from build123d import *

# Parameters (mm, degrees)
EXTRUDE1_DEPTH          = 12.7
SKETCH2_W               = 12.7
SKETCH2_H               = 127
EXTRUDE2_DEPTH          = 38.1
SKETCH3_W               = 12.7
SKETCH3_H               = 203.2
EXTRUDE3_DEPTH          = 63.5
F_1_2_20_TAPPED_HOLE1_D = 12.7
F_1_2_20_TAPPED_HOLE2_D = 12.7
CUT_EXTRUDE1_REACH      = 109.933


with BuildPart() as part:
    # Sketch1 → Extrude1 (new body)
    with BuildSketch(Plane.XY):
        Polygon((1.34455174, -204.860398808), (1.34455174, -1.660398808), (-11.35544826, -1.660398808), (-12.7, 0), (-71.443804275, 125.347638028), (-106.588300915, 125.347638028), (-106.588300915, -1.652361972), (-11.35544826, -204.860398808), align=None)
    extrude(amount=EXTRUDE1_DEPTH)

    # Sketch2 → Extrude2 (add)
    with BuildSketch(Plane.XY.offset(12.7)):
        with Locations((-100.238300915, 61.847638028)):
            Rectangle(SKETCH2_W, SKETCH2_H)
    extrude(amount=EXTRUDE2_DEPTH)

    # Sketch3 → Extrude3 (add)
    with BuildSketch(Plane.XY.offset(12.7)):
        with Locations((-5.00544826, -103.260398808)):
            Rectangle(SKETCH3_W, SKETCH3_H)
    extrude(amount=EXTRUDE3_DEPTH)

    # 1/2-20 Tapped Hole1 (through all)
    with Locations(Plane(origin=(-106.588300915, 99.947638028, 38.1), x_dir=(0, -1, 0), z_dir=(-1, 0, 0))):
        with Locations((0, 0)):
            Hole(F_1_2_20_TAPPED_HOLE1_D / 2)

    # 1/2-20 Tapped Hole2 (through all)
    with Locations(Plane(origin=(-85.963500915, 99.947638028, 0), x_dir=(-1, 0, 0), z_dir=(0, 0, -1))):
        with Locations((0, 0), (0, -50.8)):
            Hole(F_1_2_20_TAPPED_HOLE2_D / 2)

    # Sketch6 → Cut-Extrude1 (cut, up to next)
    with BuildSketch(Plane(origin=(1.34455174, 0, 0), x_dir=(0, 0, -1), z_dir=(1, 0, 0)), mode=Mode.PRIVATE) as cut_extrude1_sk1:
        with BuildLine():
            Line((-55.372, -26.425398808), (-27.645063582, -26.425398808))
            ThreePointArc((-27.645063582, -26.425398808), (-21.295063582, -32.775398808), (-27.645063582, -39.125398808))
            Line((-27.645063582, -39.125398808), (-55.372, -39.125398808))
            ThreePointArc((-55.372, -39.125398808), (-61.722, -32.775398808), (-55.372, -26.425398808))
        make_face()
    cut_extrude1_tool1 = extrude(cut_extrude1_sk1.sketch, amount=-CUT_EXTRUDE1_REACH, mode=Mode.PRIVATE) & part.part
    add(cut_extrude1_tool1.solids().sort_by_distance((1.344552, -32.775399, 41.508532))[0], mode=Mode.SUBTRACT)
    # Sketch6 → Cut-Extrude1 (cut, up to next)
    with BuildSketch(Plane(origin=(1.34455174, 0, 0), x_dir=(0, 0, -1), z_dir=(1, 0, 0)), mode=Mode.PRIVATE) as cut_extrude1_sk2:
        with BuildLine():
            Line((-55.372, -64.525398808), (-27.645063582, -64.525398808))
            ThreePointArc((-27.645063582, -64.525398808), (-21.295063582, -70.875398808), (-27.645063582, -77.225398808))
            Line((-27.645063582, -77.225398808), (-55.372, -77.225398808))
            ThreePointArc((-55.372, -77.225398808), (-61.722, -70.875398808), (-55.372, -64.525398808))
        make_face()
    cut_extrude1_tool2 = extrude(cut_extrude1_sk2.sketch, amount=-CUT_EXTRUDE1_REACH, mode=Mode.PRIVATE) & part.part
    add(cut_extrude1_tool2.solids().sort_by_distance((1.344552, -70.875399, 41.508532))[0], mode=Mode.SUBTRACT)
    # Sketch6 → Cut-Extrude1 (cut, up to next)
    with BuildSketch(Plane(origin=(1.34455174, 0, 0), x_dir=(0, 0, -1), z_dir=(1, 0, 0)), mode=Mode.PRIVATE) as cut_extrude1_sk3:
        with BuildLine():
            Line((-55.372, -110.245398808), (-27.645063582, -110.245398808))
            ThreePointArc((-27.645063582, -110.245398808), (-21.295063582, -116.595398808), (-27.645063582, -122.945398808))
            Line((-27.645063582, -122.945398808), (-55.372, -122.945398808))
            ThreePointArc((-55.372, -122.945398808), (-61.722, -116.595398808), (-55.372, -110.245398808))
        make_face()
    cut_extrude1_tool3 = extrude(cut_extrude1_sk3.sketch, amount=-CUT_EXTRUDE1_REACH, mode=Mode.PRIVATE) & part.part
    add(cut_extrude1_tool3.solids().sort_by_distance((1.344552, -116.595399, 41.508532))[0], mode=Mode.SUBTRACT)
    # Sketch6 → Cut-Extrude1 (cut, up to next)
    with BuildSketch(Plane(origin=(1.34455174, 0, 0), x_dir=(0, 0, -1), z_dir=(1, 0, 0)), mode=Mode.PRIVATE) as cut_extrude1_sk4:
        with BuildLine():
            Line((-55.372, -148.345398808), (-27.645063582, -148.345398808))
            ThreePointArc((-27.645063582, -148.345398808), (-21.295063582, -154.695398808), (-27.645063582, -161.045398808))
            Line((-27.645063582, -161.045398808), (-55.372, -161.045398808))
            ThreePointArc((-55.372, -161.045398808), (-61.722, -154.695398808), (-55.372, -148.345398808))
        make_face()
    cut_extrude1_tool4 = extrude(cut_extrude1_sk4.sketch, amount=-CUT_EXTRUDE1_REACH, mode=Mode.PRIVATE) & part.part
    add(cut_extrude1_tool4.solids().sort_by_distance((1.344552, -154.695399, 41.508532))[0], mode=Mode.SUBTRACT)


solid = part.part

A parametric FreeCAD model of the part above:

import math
import FreeCAD as App
import Part
import Sketcher
Q = App.Units.Quantity

doc = App.newDocument("Part")
body = doc.addObject("PartDesign::Body", "Body")

# Sketch on XY plane
sketch1 = body.newObject("Sketcher::SketchObject", "Sketch")
sketch1.AttachmentSupport = (doc.getObject("XY_Plane"), [""])
sketch1.MapMode = "FlatFace"
sketch1.addGeometry([
    Part.LineSegment(App.Vector(1.3, -204.9, 0), App.Vector(1.3, -1.7, 0)),  # 0
    Part.LineSegment(App.Vector(1.3, -1.7, 0), App.Vector(-11.4, -1.7, 0)),  # 1
    Part.LineSegment(App.Vector(-11.4, -1.7, 0), App.Vector(-12.7, 0, 0)),  # 2
    Part.LineSegment(App.Vector(-12.7, 0, 0), App.Vector(-71.4, 125.3, 0)),  # 3
    Part.LineSegment(App.Vector(-71.4, 125.3, 0), App.Vector(-106.6, 125.3, 0)),  # 4
    Part.LineSegment(App.Vector(-106.6, 125.3, 0), App.Vector(-106.6, -1.7, 0)),  # 5
    Part.LineSegment(App.Vector(-106.6, -1.7, 0), App.Vector(-11.4, -204.9, 0)),  # 6
    Part.LineSegment(App.Vector(-11.4, -204.9, 0), App.Vector(1.3, -204.9, 0)),  # 7
], False)
sketch1.addConstraint([
    Sketcher.Constraint("Coincident", 0, 2, 1, 1),
    Sketcher.Constraint("Coincident", 1, 2, 2, 1),
    Sketcher.Constraint("Coincident", 2, 2, 3, 1),
    Sketcher.Constraint("Coincident", 3, 2, 4, 1),
    Sketcher.Constraint("Coincident", 4, 2, 5, 1),
    Sketcher.Constraint("Coincident", 5, 2, 6, 1),
    Sketcher.Constraint("Coincident", 6, 2, 7, 1),
    Sketcher.Constraint("Coincident", 7, 2, 0, 1),
    Sketcher.Constraint("Vertical", 0),
    Sketcher.Constraint("Horizontal", 1),
    Sketcher.Constraint("Horizontal", 4),
    Sketcher.Constraint("Vertical", 5),
    Sketcher.Constraint("Horizontal", 7),
    Sketcher.Constraint("PointOnObject", 2, 2, -1),
    Sketcher.Constraint("Parallel", 3, 6),
    Sketcher.Constraint("Vertical", 1, 2, 6, 2),
    Sketcher.Constraint("DistanceY", 0, 1, 0, 2, Q("8 in")),
    Sketcher.Constraint("DistanceY", 5, 2, 5, 1, Q("5 in")),
    Sketcher.Constraint("DistanceX", 1, 2, 1, 1, Q("0.5 in")),
    Sketcher.Constraint("DistanceX", 2, 2, -1, 1, Q("0.5 in")),
    Sketcher.Constraint("Distance", 3, Q("5.45 in")),
    Sketcher.Constraint("Angle", 3, Q("115.11 deg")),
    Sketcher.Constraint("DistanceY", 0, 2, -1, 1, Q("1.660399 mm")),
    Sketcher.Constraint("DistanceX", 4, 2, -1, 1, Q("106.588301 mm")),
])
pad1 = body.newObject("PartDesign::Pad", "Pad")
pad1.Profile = sketch1
pad1.Length = Q("0.5 in")

# Sketch on XY plane
sketch2 = body.newObject("Sketcher::SketchObject", "Sketch001")
sketch2.AttachmentSupport = (doc.getObject("XY_Plane"), [""])
sketch2.MapMode = "FlatFace"
sketch2.AttachmentOffset = App.Placement(App.Vector(0, 0, 0.5 * 25.4), App.Rotation())
sketch2.addGeometry([
    Part.LineSegment(App.Vector(-107, 125, 0), App.Vector(-107, -2, 0)),
    Part.LineSegment(App.Vector(-107, -2, 0), App.Vector(-94, -2, 0)),
    Part.LineSegment(App.Vector(-94, -2, 0), App.Vector(-94, 125, 0)),
    Part.LineSegment(App.Vector(-94, 125, 0), App.Vector(-107, 125, 0)),
], False)
sketch2.addConstraint([
    Sketcher.Constraint("Coincident", 0, 2, 1, 1),
    Sketcher.Constraint("Coincident", 1, 2, 2, 1),
    Sketcher.Constraint("Coincident", 2, 2, 3, 1),
    Sketcher.Constraint("Coincident", 3, 2, 0, 1),
    Sketcher.Constraint("Vertical", 0),
    Sketcher.Constraint("Horizontal", 1),
    Sketcher.Constraint("Vertical", 2),
    Sketcher.Constraint("Horizontal", 3),
    Sketcher.Constraint("DistanceY", 0, 2, 0, 1, Q("5 in")),
    Sketcher.Constraint("DistanceX", 1, 1, 1, 2, Q("0.5 in")),
    Sketcher.Constraint("DistanceX", 0, 2, -1, 1, Q("106.588301 mm")),
    Sketcher.Constraint("DistanceY", 0, 2, -1, 1, Q("1.652362 mm")),
])
pad2 = body.newObject("PartDesign::Pad", "Pad001")
pad2.Profile = sketch2
pad2.Length = Q("1.5 in")

# Sketch on XY plane
sketch3 = body.newObject("Sketcher::SketchObject", "Sketch002")
sketch3.AttachmentSupport = (doc.getObject("XY_Plane"), [""])
sketch3.MapMode = "FlatFace"
sketch3.AttachmentOffset = App.Placement(App.Vector(0, 0, 0.5 * 25.4), App.Rotation())
sketch3.addGeometry([
    Part.LineSegment(App.Vector(-11, -2, 0), App.Vector(-11, -205, 0)),
    Part.LineSegment(App.Vector(-11, -205, 0), App.Vector(1, -205, 0)),
    Part.LineSegment(App.Vector(1, -205, 0), App.Vector(1, -2, 0)),
    Part.LineSegment(App.Vector(1, -2, 0), App.Vector(-11, -2, 0)),
], False)
sketch3.addConstraint([
    Sketcher.Constraint("Coincident", 0, 2, 1, 1),
    Sketcher.Constraint("Coincident", 1, 2, 2, 1),
    Sketcher.Constraint("Coincident", 2, 2, 3, 1),
    Sketcher.Constraint("Coincident", 3, 2, 0, 1),
    Sketcher.Constraint("Vertical", 0),
    Sketcher.Constraint("Horizontal", 1),
    Sketcher.Constraint("Vertical", 2),
    Sketcher.Constraint("Horizontal", 3),
    Sketcher.Constraint("DistanceY", 0, 2, 0, 1, Q("8 in")),
    Sketcher.Constraint("DistanceX", 1, 1, 1, 2, Q("0.5 in")),
    Sketcher.Constraint("DistanceY", 0, 2, -1, 1, Q("204.860399 mm")),
    Sketcher.Constraint("DistanceX", 0, 2, -1, 1, Q("11.355448 mm")),
])
pad3 = body.newObject("PartDesign::Pad", "Pad002")
pad3.Profile = sketch3
pad3.Length = Q("2.5 in")

# Sketch on YZ plane
sketch4 = body.newObject("Sketcher::SketchObject", "Sketch003")
sketch4.AttachmentSupport = (doc.getObject("YZ_Plane"), [""])
sketch4.MapMode = "FlatFace"
sketch4.AttachmentOffset = App.Placement(App.Vector(0, 0, -106.588301), App.Rotation())
sketch4.addGeometry(Part.Circle(App.Vector(100, 38, 0), App.Vector(0, 0, 1), 6), False)
sketch4.addConstraint([
    Sketcher.Constraint("Diameter", 0, Q("0.5 in")),
    Sketcher.Constraint("DistanceY", -1, 1, 0, 3, Q("1.5 in")),
    Sketcher.Constraint("DistanceX", -1, 1, 0, 3, Q("99.947638 mm")),
])
doc.recompute()
hole = body.newObject("PartDesign::Hole", "Hole")
hole.Profile = sketch4
hole.ThreadType = "None"
hole.Diameter = Q("0.5 in")
hole.DepthType = "ThroughAll"
hole.Reversed = True

# Sketch on XY plane
sketch5 = body.newObject("Sketcher::SketchObject", "Sketch004")
sketch5.AttachmentSupport = (doc.getObject("XY_Plane"), [""])
sketch5.MapMode = "FlatFace"
sketch5.addGeometry([
    Part.Circle(App.Vector(-86, 100, 0), App.Vector(0, 0, 1), 6),
    Part.Circle(App.Vector(-86, 49, 0), App.Vector(0, 0, 1), 6),
], False)
sketch5.addConstraint([
    Sketcher.Constraint("Equal", 0, 1),
    Sketcher.Constraint("Vertical", 0, 3, 1, 3),
    Sketcher.Constraint("Diameter", 0, Q("0.5 in")),
    Sketcher.Constraint("DistanceY", 1, 3, 0, 3, Q("2 in")),
    Sketcher.Constraint("DistanceX", 0, 3, -1, 1, Q("85.963501 mm")),
    Sketcher.Constraint("DistanceY", -1, 1, 0, 3, Q("99.947638 mm")),
])
doc.recompute()
hole2 = body.newObject("PartDesign::Hole", "Hole001")
hole2.Profile = sketch5
hole2.ThreadType = "None"
hole2.Diameter = Q("0.5 in")
hole2.DepthType = "ThroughAll"
hole2.Reversed = True

# Sketch on YZ plane
sketch6 = body.newObject("Sketcher::SketchObject", "Sketch005")
sketch6.AttachmentSupport = (doc.getObject("YZ_Plane"), [""])
sketch6.MapMode = "FlatFace"
sketch6.AttachmentOffset = App.Placement(App.Vector(0, 0, 1.344552), App.Rotation())
sketch6.addGeometry([
    Part.LineSegment(App.Vector(-26, 28, 0), App.Vector(-26, 55, 0)),
    Part.ArcOfCircle(Part.Circle(App.Vector(-33, 55, 0), App.Vector(0, 0, 1), 6), math.radians(0), math.radians(180)),
    Part.LineSegment(App.Vector(-39, 55, 0), App.Vector(-39, 28, 0)),
    Part.ArcOfCircle(Part.Circle(App.Vector(-33, 28, 0), App.Vector(0, 0, 1), 6), math.radians(180), math.radians(360)),
], False)
sketch6.addConstraint([
    Sketcher.Constraint("Tangent", 0, 2, 1, 1),
    Sketcher.Constraint("Tangent", 1, 2, 2, 1),
    Sketcher.Constraint("Tangent", 2, 2, 3, 1),
    Sketcher.Constraint("Tangent", 3, 2, 0, 1),
    Sketcher.Constraint("Vertical", 0),
    Sketcher.Constraint("Vertical", 2),
    Sketcher.Constraint("Radius", 1, Q("0.25 in")),
    Sketcher.Constraint("DistanceY", -1, 1, 1, 3, Q("2.18 in")),
    Sketcher.Constraint("DistanceX", 1, 3, -1, 1, Q("32.775399 mm")),
    Sketcher.Constraint("DistanceY", 0, 1, 0, 2, Q("27.726936 mm")),
])
pocket1 = body.newObject("PartDesign::Pocket", "Pocket")
pocket1.Profile = sketch6
pocket1.Type = "UpToFirst"

# Sketch on YZ plane
sketch7 = body.newObject("Sketcher::SketchObject", "Sketch006")
sketch7.AttachmentSupport = (doc.getObject("YZ_Plane"), [""])
sketch7.MapMode = "FlatFace"
sketch7.AttachmentOffset = App.Placement(App.Vector(0, 0, 1.344552), App.Rotation())
sketch7.addGeometry([
    Part.LineSegment(App.Vector(-65, 28, 0), App.Vector(-65, 55, 0)),
    Part.ArcOfCircle(Part.Circle(App.Vector(-71, 55, 0), App.Vector(0, 0, 1), 6), math.radians(0), math.radians(180)),
    Part.LineSegment(App.Vector(-77, 55, 0), App.Vector(-77, 28, 0)),
    Part.ArcOfCircle(Part.Circle(App.Vector(-71, 28, 0), App.Vector(0, 0, 1), 6), math.radians(180), math.radians(360)),
], False)
sketch7.addConstraint([
    Sketcher.Constraint("Tangent", 0, 2, 1, 1),
    Sketcher.Constraint("Tangent", 1, 2, 2, 1),
    Sketcher.Constraint("Tangent", 2, 2, 3, 1),
    Sketcher.Constraint("Tangent", 3, 2, 0, 1),
    Sketcher.Constraint("Vertical", 0),
    Sketcher.Constraint("Vertical", 2),
    Sketcher.Constraint("Radius", 1, Q("0.25 in")),
    Sketcher.Constraint("DistanceY", -1, 1, 1, 3, Q("2.18 in")),
    Sketcher.Constraint("DistanceX", 1, 3, -1, 1, Q("70.875399 mm")),
    Sketcher.Constraint("DistanceY", 0, 1, 0, 2, Q("27.726936 mm")),
])
pocket2 = body.newObject("PartDesign::Pocket", "Pocket001")
pocket2.Profile = sketch7
pocket2.Type = "UpToFirst"

# Sketch on YZ plane
sketch8 = body.newObject("Sketcher::SketchObject", "Sketch007")
sketch8.AttachmentSupport = (doc.getObject("YZ_Plane"), [""])
sketch8.MapMode = "FlatFace"
sketch8.AttachmentOffset = App.Placement(App.Vector(0, 0, 1.344552), App.Rotation())
sketch8.addGeometry([
    Part.LineSegment(App.Vector(-110, 28, 0), App.Vector(-110, 55, 0)),
    Part.ArcOfCircle(Part.Circle(App.Vector(-117, 55, 0), App.Vector(0, 0, 1), 6), math.radians(0), math.radians(180)),
    Part.LineSegment(App.Vector(-123, 55, 0), App.Vector(-123, 28, 0)),
    Part.ArcOfCircle(Part.Circle(App.Vector(-117, 28, 0), App.Vector(0, 0, 1), 6), math.radians(180), math.radians(360)),
], False)
sketch8.addConstraint([
    Sketcher.Constraint("Tangent", 0, 2, 1, 1),
    Sketcher.Constraint("Tangent", 1, 2, 2, 1),
    Sketcher.Constraint("Tangent", 2, 2, 3, 1),
    Sketcher.Constraint("Tangent", 3, 2, 0, 1),
    Sketcher.Constraint("Vertical", 0),
    Sketcher.Constraint("Vertical", 2),
    Sketcher.Constraint("Radius", 1, Q("0.25 in")),
    Sketcher.Constraint("DistanceY", -1, 1, 1, 3, Q("2.18 in")),
    Sketcher.Constraint("DistanceX", 1, 3, -1, 1, Q("116.595399 mm")),
    Sketcher.Constraint("DistanceY", 0, 1, 0, 2, Q("27.726936 mm")),
])
pocket3 = body.newObject("PartDesign::Pocket", "Pocket002")
pocket3.Profile = sketch8
pocket3.Type = "UpToFirst"

# Sketch on YZ plane
sketch9 = body.newObject("Sketcher::SketchObject", "Sketch008")
sketch9.AttachmentSupport = (doc.getObject("YZ_Plane"), [""])
sketch9.MapMode = "FlatFace"
sketch9.AttachmentOffset = App.Placement(App.Vector(0, 0, 1.344552), App.Rotation())
sketch9.addGeometry([
    Part.LineSegment(App.Vector(-148, 28, 0), App.Vector(-148, 55, 0)),
    Part.ArcOfCircle(Part.Circle(App.Vector(-155, 55, 0), App.Vector(0, 0, 1), 6), math.radians(0), math.radians(180)),
    Part.LineSegment(App.Vector(-161, 55, 0), App.Vector(-161, 28, 0)),
    Part.ArcOfCircle(Part.Circle(App.Vector(-155, 28, 0), App.Vector(0, 0, 1), 6), math.radians(180), math.radians(360)),
], False)
sketch9.addConstraint([
    Sketcher.Constraint("Tangent", 0, 2, 1, 1),
    Sketcher.Constraint("Tangent", 1, 2, 2, 1),
    Sketcher.Constraint("Tangent", 2, 2, 3, 1),
    Sketcher.Constraint("Tangent", 3, 2, 0, 1),
    Sketcher.Constraint("Vertical", 0),
    Sketcher.Constraint("Vertical", 2),
    Sketcher.Constraint("Radius", 1, Q("0.25 in")),
    Sketcher.Constraint("DistanceY", -1, 1, 1, 3, Q("2.18 in")),
    Sketcher.Constraint("DistanceX", 1, 3, -1, 1, Q("154.695399 mm")),
    Sketcher.Constraint("DistanceY", 0, 1, 0, 2, Q("27.726936 mm")),
])
pocket4 = body.newObject("PartDesign::Pocket", "Pocket003")
pocket4.Profile = sketch9
pocket4.Type = "UpToFirst"

doc.recompute()
